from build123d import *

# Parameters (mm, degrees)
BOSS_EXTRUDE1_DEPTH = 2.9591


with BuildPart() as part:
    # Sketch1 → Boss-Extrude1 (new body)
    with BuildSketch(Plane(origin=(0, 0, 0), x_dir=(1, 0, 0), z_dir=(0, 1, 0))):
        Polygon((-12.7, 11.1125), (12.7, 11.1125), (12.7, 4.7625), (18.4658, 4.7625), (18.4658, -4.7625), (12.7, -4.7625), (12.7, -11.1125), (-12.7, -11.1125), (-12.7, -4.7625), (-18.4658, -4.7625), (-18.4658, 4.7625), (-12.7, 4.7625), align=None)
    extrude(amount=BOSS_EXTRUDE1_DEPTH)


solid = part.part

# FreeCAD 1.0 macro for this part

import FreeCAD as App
import Part
import Sketcher
from FreeCAD import Vector
Q = App.Units.Quantity


def add_polygon(sketch, points):
    """Adds a closed chain of lines whose ends are joined by coincident constraints."""
    first, n = sketch.GeometryCount, len(points)
    for a, b in zip(points, points[1:] + points[:1]):
        sketch.addGeometry(Part.LineSegment(App.Vector(*a, 0), App.Vector(*b, 0)), False)
    for i in range(n):
        sketch.addConstraint(Sketcher.Constraint("Coincident", first + i, 2, first + (i + 1) % n, 1))

doc = App.newDocument("Part")
body = doc.addObject("PartDesign::Body", "Body")

sketch1 = doc.addObject("Sketcher::SketchObject", "Sketch")
body.addObject(sketch1)
sketch1.AttachmentSupport = (doc.XZ_Plane, [""])
sketch1.MapMode = "FlatFace"
add_polygon(sketch1, [(13, -11), (-13, -11), (-13, -5), (-18, -5), (-18, 5), (-13, 5), (-13, 11), (13, 11), (13, 5), (18, 5), (18, -5), (13, -5)])
sketch1.addConstraint([
    Sketcher.Constraint("Horizontal", 0),
    Sketcher.Constraint("Vertical", 1),
    Sketcher.Constraint("Horizontal", 2),
    Sketcher.Constraint("Vertical", 3),
    Sketcher.Constraint("Horizontal", 4),
    Sketcher.Constraint("Vertical", 5),
    Sketcher.Constraint("Horizontal", 6),
    Sketcher.Constraint("Vertical", 7),
    Sketcher.Constraint("Horizontal", 8),
    Sketcher.Constraint("Vertical", 9),
    Sketcher.Constraint("Horizontal", 10),
    Sketcher.Constraint("Vertical", 11),
    Sketcher.Constraint("Symmetric", 0, 2, 6, 2, -1, 1),
    Sketcher.Constraint("Symmetric", 2, 2, 8, 2, -1, 1),
    Sketcher.Constraint("Symmetric", 4, 2, 10, 2, -1, 1),
    Sketcher.Constraint("Symmetric", 4, 2, 7, 2, -2),
    Sketcher.Constraint("DistanceX", 0, 2, 0, 1, Q("1 in")),
    Sketcher.Constraint("DistanceY", 1, 1, 1, 2, Q("0.25 in")),
    Sketcher.Constraint("DistanceX", 2, 2, 2, 1, Q("0.227 in")),
    Sketcher.Constraint("DistanceY", 3, 1, 3, 2, Q("0.375 in")),
])
pad1 = doc.addObject("PartDesign::Pad", "Pad")
body.addObject(pad1)
pad1.Profile = sketch1
pad1.Length = Q("0.1165 in")
pad1.Reversed = True

doc.recompute()
